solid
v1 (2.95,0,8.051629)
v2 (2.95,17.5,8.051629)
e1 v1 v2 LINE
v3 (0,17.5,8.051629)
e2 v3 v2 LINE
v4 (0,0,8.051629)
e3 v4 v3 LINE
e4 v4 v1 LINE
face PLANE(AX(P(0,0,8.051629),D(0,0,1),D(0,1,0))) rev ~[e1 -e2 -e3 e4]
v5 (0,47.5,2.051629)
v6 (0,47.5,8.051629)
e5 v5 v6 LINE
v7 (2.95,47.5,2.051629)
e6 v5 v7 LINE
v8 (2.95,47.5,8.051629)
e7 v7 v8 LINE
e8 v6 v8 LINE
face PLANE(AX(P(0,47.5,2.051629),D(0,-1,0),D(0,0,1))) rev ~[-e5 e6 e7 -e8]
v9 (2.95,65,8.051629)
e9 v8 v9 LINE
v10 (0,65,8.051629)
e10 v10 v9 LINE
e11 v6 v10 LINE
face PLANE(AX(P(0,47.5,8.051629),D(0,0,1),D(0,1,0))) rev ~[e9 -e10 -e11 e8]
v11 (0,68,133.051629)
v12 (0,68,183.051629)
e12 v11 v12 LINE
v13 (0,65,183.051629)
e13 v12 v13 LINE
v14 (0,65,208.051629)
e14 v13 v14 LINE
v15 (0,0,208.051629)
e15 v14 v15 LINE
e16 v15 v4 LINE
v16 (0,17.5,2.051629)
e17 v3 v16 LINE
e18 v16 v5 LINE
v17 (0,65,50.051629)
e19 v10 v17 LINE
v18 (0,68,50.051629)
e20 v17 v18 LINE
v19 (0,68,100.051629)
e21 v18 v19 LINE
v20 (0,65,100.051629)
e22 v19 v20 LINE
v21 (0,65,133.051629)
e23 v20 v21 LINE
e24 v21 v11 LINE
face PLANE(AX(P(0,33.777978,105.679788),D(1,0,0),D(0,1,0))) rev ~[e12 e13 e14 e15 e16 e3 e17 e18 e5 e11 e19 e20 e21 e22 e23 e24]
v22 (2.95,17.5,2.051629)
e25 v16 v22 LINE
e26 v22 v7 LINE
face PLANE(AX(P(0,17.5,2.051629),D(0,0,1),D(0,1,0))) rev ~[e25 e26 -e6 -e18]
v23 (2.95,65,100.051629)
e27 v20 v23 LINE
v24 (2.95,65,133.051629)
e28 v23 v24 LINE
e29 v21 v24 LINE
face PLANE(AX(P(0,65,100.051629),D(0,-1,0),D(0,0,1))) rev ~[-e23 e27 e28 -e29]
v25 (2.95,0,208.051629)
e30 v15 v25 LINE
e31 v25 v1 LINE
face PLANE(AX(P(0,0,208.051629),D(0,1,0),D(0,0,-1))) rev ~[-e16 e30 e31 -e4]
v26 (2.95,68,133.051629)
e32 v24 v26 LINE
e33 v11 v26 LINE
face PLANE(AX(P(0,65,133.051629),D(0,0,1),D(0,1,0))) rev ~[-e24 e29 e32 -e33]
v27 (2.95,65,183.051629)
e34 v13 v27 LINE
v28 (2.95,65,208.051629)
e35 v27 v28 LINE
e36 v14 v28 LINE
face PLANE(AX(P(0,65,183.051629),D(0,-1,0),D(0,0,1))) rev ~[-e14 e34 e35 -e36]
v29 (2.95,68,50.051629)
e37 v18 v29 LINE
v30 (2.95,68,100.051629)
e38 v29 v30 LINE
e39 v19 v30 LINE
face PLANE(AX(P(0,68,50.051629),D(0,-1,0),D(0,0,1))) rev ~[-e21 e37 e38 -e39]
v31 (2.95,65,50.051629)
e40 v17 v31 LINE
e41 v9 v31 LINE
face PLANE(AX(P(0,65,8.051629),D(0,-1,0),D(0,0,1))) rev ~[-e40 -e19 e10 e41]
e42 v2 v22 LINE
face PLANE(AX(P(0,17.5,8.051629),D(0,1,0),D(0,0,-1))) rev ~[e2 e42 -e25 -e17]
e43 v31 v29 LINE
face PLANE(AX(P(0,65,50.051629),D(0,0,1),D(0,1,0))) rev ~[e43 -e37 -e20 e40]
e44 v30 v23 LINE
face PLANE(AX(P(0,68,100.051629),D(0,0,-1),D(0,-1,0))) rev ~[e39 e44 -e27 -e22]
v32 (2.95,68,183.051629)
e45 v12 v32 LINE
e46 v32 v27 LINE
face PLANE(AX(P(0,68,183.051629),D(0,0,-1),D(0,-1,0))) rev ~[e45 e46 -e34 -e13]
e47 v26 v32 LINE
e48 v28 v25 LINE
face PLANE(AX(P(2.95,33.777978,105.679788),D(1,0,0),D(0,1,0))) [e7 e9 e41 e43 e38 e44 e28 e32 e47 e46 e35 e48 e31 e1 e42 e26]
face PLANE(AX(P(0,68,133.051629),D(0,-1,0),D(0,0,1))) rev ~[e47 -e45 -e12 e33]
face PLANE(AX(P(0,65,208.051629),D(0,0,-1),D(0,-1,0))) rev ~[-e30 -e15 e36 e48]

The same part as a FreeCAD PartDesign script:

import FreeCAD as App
import Part
import Sketcher


def add_polygon(sketch, points):
    """Adds a closed chain of lines whose ends are joined by coincident constraints."""
    first, n = sketch.GeometryCount, len(points)
    for a, b in zip(points, points[1:] + points[:1]):
        sketch.addGeometry(Part.LineSegment(App.Vector(*a, 0), App.Vector(*b, 0)), False)
    for i in range(n):
        sketch.addConstraint(Sketcher.Constraint("Coincident", first + i, 2, first + (i + 1) % n, 1))

doc = App.newDocument("Part")
body = doc.addObject("PartDesign::Body", "Body")

# Sketch on YZ plane
sketch1 = body.newObject("Sketcher::SketchObject", "Sketch")
sketch1.AttachmentSupport = (doc.getObject("YZ_Plane"), [""])
sketch1.MapMode = "FlatFace"
add_polygon(sketch1, [(0, 208.051629), (0, 8.051629), (17.5, 8.051629), (17.5, 2.051629), (47.5, 2.051629), (47.5, 8.051629), (65, 8.051629), (65, 50.051629), (68, 50.051629), (68, 100.051629), (65, 100.051629), (65, 133.051629), (68, 133.051629), (68, 183.051629), (65, 183.051629), (65, 208.051629)])  # lines 0-15
sketch1.addConstraint(Sketcher.Constraint("Vertical", 0))
sketch1.addConstraint(Sketcher.Constraint("Horizontal", 1))
sketch1.addConstraint(Sketcher.Constraint("Vertical", 2))
sketch1.addConstraint(Sketcher.Constraint("Horizontal", 3))
sketch1.addConstraint(Sketcher.Constraint("Vertical", 4))
sketch1.addConstraint(Sketcher.Constraint("Horizontal", 5))
sketch1.addConstraint(Sketcher.Constraint("Vertical", 6))
sketch1.addConstraint(Sketcher.Constraint("Horizontal", 7))
sketch1.addConstraint(Sketcher.Constraint("Vertical", 8))
sketch1.addConstraint(Sketcher.Constraint("Horizontal", 9))
sketch1.addConstraint(Sketcher.Constraint("Vertical", 10))
sketch1.addConstraint(Sketcher.Constraint("Horizontal", 11))
sketch1.addConstraint(Sketcher.Constraint("Vertical", 12))
sketch1.addConstraint(Sketcher.Constraint("Horizontal", 13))
sketch1.addConstraint(Sketcher.Constraint("Vertical", 14))
sketch1.addConstraint(Sketcher.Constraint("Horizontal", 15))
sketch1.addConstraint(Sketcher.Constraint("PointOnObject", 0, 2, -2))
sketch1.addConstraint(Sketcher.Constraint("Horizontal", 1, 2, 4, 2))
sketch1.addConstraint(Sketcher.Constraint("Vertical", 6, 2, 9, 2))
sketch1.addConstraint(Sketcher.Constraint("Vertical", 8, 2, 11, 2))
sketch1.addConstraint(Sketcher.Constraint("Vertical", 10, 2, 13, 2))
sketch1.addConstraint(Sketcher.Constraint("Equal", 1, 5))
sketch1.addConstraint(Sketcher.Constraint("Equal", 8, 12))
sketch1.addConstraint(Sketcher.Constraint("DistanceX", 3, 1, 3, 2, 30.0))
sketch1.addConstraint(Sketcher.Constraint("DistanceX", 7, 1, 7, 2, 3.0))
sketch1.addConstraint(Sketcher.Constraint("DistanceX", 15, 2, 15, 1, 65.0))
sketch1.addConstraint(Sketcher.Constraint("DistanceY", 0, 2, 0, 1, 200.0))
sketch1.addConstraint(Sketcher.Constraint("DistanceY", 2, 2, 2, 1, 6.0))
sketch1.addConstraint(Sketcher.Constraint("DistanceY", 6, 1, 6, 2, 42.0))
sketch1.addConstraint(Sketcher.Constraint("DistanceY", 8, 1, 8, 2, 50.0))
sketch1.addConstraint(Sketcher.Constraint("DistanceY", 10, 1, 10, 2, 33.0))
sketch1.addConstraint(Sketcher.Constraint("DistanceY", -1, 1, 0, 2, 8.051629))
pad1 = body.newObject("PartDesign::Pad", "Pad")
pad1.Profile = sketch1
pad1.Length = 2.95

doc.recompute()
